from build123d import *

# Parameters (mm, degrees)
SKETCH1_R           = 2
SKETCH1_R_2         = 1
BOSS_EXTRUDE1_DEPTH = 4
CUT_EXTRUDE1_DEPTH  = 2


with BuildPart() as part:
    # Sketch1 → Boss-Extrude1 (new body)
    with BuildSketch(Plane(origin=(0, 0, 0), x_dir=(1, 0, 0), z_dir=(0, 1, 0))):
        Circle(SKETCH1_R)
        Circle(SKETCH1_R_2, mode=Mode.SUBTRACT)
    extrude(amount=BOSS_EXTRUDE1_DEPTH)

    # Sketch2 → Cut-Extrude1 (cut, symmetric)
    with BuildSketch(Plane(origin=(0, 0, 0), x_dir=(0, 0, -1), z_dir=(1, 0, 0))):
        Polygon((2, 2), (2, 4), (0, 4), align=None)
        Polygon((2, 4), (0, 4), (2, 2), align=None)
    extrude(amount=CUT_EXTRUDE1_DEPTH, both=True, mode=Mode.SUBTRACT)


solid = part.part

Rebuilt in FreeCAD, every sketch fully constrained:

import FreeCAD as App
import Part
import Sketcher

V = App.Vector
Q = App.Units.Quantity


def add_polygon(sketch, points):
    """Adds a closed chain of lines whose ends are joined by coincident constraints."""
    first, n = sketch.GeometryCount, len(points)
    for a, b in zip(points, points[1:] + points[:1]):
        sketch.addGeometry(Part.LineSegment(App.Vector(*a, 0), App.Vector(*b, 0)), False)
    for i in range(n):
        sketch.addConstraint(Sketcher.Constraint("Coincident", first + i, 2, first + (i + 1) % n, 1))

doc = App.newDocument("Part")
body = doc.addObject("PartDesign::Body", "Body")

# Sketch on XZ plane
sketch1 = body.newObject("Sketcher::SketchObject", "Sketch")
sketch1.AttachmentSupport = (doc.getObject("XZ_Plane"), [""])
sketch1.MapMode = "FlatFace"
sketch1.addGeometry(Part.Circle(V(0, 0, 0), V(0, 0, 1), 2), False)
sketch1.addGeometry(Part.Circle(V(0, 0, 0), V(0, 0, 1), 1), False)
sketch1.addConstraint(Sketcher.Constraint("Coincident", 0, 3, -1, 1))
sketch1.addConstraint(Sketcher.Constraint("Coincident", 1, 3, -1, 1))
sketch1.addConstraint(Sketcher.Constraint("Diameter", 0, Q("4 mm")))
sketch1.addConstraint(Sketcher.Constraint("Diameter", 1, Q("2 mm")))
pad1 = body.newObject("PartDesign::Pad", "Pad")
pad1.Profile = sketch1
pad1.Length = 4
pad1.Reversed = True

# Sketch on YZ plane
sketch2 = body.newObject("Sketcher::SketchObject", "Sketch001")
sketch2.AttachmentSupport = (doc.getObject("YZ_Plane"), [""])
sketch2.MapMode = "FlatFace"
add_polygon(sketch2, [(2, -2), (4, -2), (4, 0)])  # lines 0-2
sketch2.addConstraint(Sketcher.Constraint("Horizontal", 0))
sketch2.addConstraint(Sketcher.Constraint("Vertical", 1))
sketch2.addConstraint(Sketcher.Constraint("PointOnObject", 1, 2, -1))
sketch2.addConstraint(Sketcher.Constraint("Equal", 0, 1))
sketch2.addConstraint(Sketcher.Constraint("DistanceX", 0, 1, 0, 2, Q("2 mm")))
sketch2.addConstraint(Sketcher.Constraint("DistanceX", -1, 1, 0, 2, Q("4 mm")))
pocket1 = body.newObject("PartDesign::Pocket", "Pocket")
pocket1.Profile = sketch2
pocket1.Length = 4
pocket1.Midplane = True

doc.recompute()
